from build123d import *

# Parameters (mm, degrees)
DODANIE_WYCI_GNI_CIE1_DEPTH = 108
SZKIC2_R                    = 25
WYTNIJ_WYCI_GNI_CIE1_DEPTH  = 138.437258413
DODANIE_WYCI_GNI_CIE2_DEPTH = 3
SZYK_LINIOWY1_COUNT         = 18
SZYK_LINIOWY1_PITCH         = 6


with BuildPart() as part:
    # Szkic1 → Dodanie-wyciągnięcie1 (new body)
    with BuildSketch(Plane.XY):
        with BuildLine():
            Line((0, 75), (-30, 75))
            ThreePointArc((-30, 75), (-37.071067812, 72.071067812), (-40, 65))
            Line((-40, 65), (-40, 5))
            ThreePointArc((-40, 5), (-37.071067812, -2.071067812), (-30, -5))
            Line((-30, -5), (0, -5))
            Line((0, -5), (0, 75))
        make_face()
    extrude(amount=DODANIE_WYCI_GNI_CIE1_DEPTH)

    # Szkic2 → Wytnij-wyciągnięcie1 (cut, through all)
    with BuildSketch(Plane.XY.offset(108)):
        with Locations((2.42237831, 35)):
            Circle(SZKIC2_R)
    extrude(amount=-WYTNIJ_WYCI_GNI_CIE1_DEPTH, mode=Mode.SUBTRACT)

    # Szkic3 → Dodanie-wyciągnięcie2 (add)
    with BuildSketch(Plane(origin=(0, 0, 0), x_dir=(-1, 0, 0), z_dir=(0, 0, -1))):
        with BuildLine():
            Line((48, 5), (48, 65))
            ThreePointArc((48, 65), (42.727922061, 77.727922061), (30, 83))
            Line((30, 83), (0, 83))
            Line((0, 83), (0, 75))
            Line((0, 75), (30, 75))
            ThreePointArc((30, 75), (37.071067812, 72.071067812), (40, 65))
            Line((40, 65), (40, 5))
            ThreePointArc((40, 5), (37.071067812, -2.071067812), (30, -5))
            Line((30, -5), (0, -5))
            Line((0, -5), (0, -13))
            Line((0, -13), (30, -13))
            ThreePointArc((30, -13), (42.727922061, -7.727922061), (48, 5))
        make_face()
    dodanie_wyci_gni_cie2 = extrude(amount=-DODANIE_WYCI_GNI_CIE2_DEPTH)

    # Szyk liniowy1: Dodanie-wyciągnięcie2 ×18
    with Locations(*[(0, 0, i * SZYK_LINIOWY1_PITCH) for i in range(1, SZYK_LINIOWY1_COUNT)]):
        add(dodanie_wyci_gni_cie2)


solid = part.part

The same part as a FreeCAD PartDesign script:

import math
import FreeCAD as App
import Part
import Sketcher

doc = App.newDocument("Part")
body = doc.addObject("PartDesign::Body", "Body")

# Sketch on XY plane
sketch1 = body.newObject("Sketcher::SketchObject", "Sketch")
sketch1.AttachmentSupport = (doc.getObject("XY_Plane"), [""])
sketch1.MapMode = "FlatFace"
sketch1.addGeometry(Part.LineSegment(App.Vector(0, 75, 0), App.Vector(-30, 75, 0)), False)
sketch1.addGeometry(Part.ArcOfCircle(Part.Circle(App.Vector(-30, 65, 0), App.Vector(0, 0, 1), 10), math.radians(90), math.radians(180)), False)
sketch1.addGeometry(Part.LineSegment(App.Vector(-40, 65, 0), App.Vector(-40, 5, 0)), False)
sketch1.addGeometry(Part.ArcOfCircle(Part.Circle(App.Vector(-30, 5, 0), App.Vector(0, 0, 1), 10), math.radians(180), math.radians(270)), False)
sketch1.addGeometry(Part.LineSegment(App.Vector(-30, -5, 0), App.Vector(0, -5, 0)), False)
sketch1.addGeometry(Part.LineSegment(App.Vector(0, -5, 0), App.Vector(0, 75, 0)), False)
sketch1.addConstraint(Sketcher.Constraint("Tangent", 0, 2, 1, 1))
sketch1.addConstraint(Sketcher.Constraint("Tangent", 1, 2, 2, 1))
sketch1.addConstraint(Sketcher.Constraint("Tangent", 2, 2, 3, 1))
sketch1.addConstraint(Sketcher.Constraint("Tangent", 3, 2, 4, 1))
sketch1.addConstraint(Sketcher.Constraint("Coincident", 4, 2, 5, 1))
sketch1.addConstraint(Sketcher.Constraint("Coincident", 5, 2, 0, 1))
sketch1.addConstraint(Sketcher.Constraint("Horizontal", 0))
sketch1.addConstraint(Sketcher.Constraint("Vertical", 2))
sketch1.addConstraint(Sketcher.Constraint("Horizontal", 4))
sketch1.addConstraint(Sketcher.Constraint("Vertical", 5))
sketch1.addConstraint(Sketcher.Constraint("Equal", 1, 3))
sketch1.addConstraint(Sketcher.Constraint("PointOnObject", 4, 2, -2))
sketch1.addConstraint(Sketcher.Constraint("Radius", 1, 10.0))
sketch1.addConstraint(Sketcher.Constraint("DistanceX", 0, 2, 0, 1, 30.0))
sketch1.addConstraint(Sketcher.Constraint("DistanceY", 2, 2, 2, 1, 60.0))
sketch1.addConstraint(Sketcher.Constraint("DistanceY", -1, 1, 1, 3, 65.0))
pad1 = body.newObject("PartDesign::Pad", "Pad")
pad1.Profile = sketch1
pad1.Length = 108

# Sketch on XY plane
sketch2 = body.newObject("Sketcher::SketchObject", "Sketch001")
sketch2.AttachmentSupport = (doc.getObject("XY_Plane"), [""])
sketch2.MapMode = "FlatFace"
sketch2.AttachmentOffset = App.Placement(App.Vector(0, 0, 108), App.Rotation())
sketch2.addGeometry(Part.Circle(App.Vector(2, 35, 0), App.Vector(0, 0, 1), 25), False)
sketch2.addConstraint(Sketcher.Constraint("Diameter", 0, 50.0))
sketch2.addConstraint(Sketcher.Constraint("DistanceY", -1, 1, 0, 3, 35.0))
sketch2.addConstraint(Sketcher.Constraint("DistanceX", -1, 1, 0, 3, 2.422378))
pocket1 = body.newObject("PartDesign::Pocket", "Pocket")
pocket1.Profile = sketch2
pocket1.Type = "ThroughAll"

# Sketch on XY plane
sketch3 = body.newObject("Sketcher::SketchObject", "Sketch002")
sketch3.AttachmentSupport = (doc.getObject("XY_Plane"), [""])
sketch3.MapMode = "FlatFace"
sketch3.addGeometry(Part.LineSegment(App.Vector(-48, 5, 0), App.Vector(-48, 65, 0)), False)
sketch3.addGeometry(Part.ArcOfCircle(Part.Circle(App.Vector(-30, 65, 0), App.Vector(0, 0, 1), 18), math.radians(90), math.radians(180)), False)
sketch3.addGeometry(Part.LineSegment(App.Vector(-30, 83, 0), App.Vector(0, 83, 0)), False)
sketch3.addGeometry(Part.LineSegment(App.Vector(0, 83, 0), App.Vector(0, 75, 0)), False)
sketch3.addGeometry(Part.LineSegment(App.Vector(0, 75, 0), App.Vector(-30, 75, 0)), False)
sketch3.addGeometry(Part.ArcOfCircle(Part.Circle(App.Vector(-30, 65, 0), App.Vector(0, 0, 1), 10), math.radians(90), math.radians(180)), False)
sketch3.addGeometry(Part.LineSegment(App.Vector(-40, 65, 0), App.Vector(-40, 5, 0)), False)
sketch3.addGeometry(Part.ArcOfCircle(Part.Circle(App.Vector(-30, 5, 0), App.Vector(0, 0, 1), 10), math.radians(180), math.radians(270)), False)
sketch3.addGeometry(Part.LineSegment(App.Vector(-30, -5, 0), App.Vector(0, -5, 0)), False)
sketch3.addGeometry(Part.LineSegment(App.Vector(0, -5, 0), App.Vector(0, -13, 0)), False)
sketch3.addGeometry(Part.LineSegment(App.Vector(0, -13, 0), App.Vector(-30, -13, 0)), False)
sketch3.addGeometry(Part.ArcOfCircle(Part.Circle(App.Vector(-30, 5, 0), App.Vector(0, 0, 1), 18), math.radians(-180), math.radians(-90)), False)
sketch3.addConstraint(Sketcher.Constraint("Tangent", 0, 2, 1, 2))
sketch3.addConstraint(Sketcher.Constraint("Tangent", 1, 1, 2, 1))
sketch3.addConstraint(Sketcher.Constraint("Coincident", 2, 2, 3, 1))
sketch3.addConstraint(Sketcher.Constraint("Coincident", 3, 2, 4, 1))
sketch3.addConstraint(Sketcher.Constraint("Tangent", 4, 2, 5, 1))
sketch3.addConstraint(Sketcher.Constraint("Tangent", 5, 2, 6, 1))
sketch3.addConstraint(Sketcher.Constraint("Tangent", 6, 2, 7, 1))
sketch3.addConstraint(Sketcher.Constraint("Tangent", 7, 2, 8, 1))
sketch3.addConstraint(Sketcher.Constraint("Coincident", 8, 2, 9, 1))
sketch3.addConstraint(Sketcher.Constraint("Coincident", 9, 2, 10, 1))
sketch3.addConstraint(Sketcher.Constraint("Tangent", 10, 2, 11, 2))
sketch3.addConstraint(Sketcher.Constraint("Tangent", 11, 1, 0, 1))
sketch3.addConstraint(Sketcher.Constraint("Vertical", 0))
sketch3.addConstraint(Sketcher.Constraint("Horizontal", 2))
sketch3.addConstraint(Sketcher.Constraint("Vertical", 3))
sketch3.addConstraint(Sketcher.Constraint("Horizontal", 4))
sketch3.addConstraint(Sketcher.Constraint("Vertical", 6))
sketch3.addConstraint(Sketcher.Constraint("Horizontal", 8))
sketch3.addConstraint(Sketcher.Constraint("Vertical", 9))
sketch3.addConstraint(Sketcher.Constraint("Horizontal", 10))
sketch3.addConstraint(Sketcher.Constraint("Coincident", 5, 3, 1, 3))
sketch3.addConstraint(Sketcher.Constraint("Coincident", 11, 3, 7, 3))
sketch3.addConstraint(Sketcher.Constraint("Equal", 5, 7))
sketch3.addConstraint(Sketcher.Constraint("PointOnObject", 2, 2, -2))
sketch3.addConstraint(Sketcher.Constraint("PointOnObject", 8, 2, -2))
sketch3.addConstraint(Sketcher.Constraint("Radius", 1, 18.0))
sketch3.addConstraint(Sketcher.Constraint("Radius", 5, 10.0))
sketch3.addConstraint(Sketcher.Constraint("DistanceX", 2, 1, 2, 2, 30.0))
sketch3.addConstraint(Sketcher.Constraint("DistanceY", 0, 1, 0, 2, 60.0))
sketch3.addConstraint(Sketcher.Constraint("DistanceY", -1, 1, 1, 3, 65.0))
pad2 = body.newObject("PartDesign::Pad", "Pad001")
pad2.Profile = sketch3
pad2.Length = 3
doc.recompute()

linearpattern = body.newObject("PartDesign::LinearPattern", "LinearPattern")
linearpattern.Originals = [pad2]
linearpattern.Direction = (doc.getObject("Z_Axis"), [""])
linearpattern.Mode = "offset"
linearpattern.Offset = 6
linearpattern.Occurrences = 18
body.Tip = linearpattern

doc.recompute()
